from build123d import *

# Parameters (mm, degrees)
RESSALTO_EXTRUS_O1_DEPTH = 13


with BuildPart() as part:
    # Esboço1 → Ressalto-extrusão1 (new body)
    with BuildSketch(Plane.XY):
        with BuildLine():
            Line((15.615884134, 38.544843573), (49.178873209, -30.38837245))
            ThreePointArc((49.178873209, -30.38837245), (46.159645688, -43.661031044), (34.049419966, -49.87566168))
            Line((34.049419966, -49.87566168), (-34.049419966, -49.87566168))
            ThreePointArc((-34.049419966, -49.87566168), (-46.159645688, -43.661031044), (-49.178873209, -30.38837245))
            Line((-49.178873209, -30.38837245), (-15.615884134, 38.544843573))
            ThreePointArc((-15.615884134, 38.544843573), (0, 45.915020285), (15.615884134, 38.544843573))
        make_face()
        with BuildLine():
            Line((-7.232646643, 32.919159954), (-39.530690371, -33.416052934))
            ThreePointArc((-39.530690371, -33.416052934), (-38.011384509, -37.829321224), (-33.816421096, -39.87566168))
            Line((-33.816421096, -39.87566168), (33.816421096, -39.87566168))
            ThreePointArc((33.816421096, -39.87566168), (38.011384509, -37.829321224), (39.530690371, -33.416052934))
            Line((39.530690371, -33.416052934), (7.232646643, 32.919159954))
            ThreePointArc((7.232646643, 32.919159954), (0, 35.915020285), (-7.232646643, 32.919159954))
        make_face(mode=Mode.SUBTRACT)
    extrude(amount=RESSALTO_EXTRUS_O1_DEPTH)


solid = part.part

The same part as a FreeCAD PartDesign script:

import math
import FreeCAD as App
import Part
import Sketcher

V = App.Vector
Q = App.Units.Quantity

doc = App.newDocument("Part")
body = doc.addObject("PartDesign::Body", "Body")

sketch1 = doc.addObject("Sketcher::SketchObject", "Sketch")
body.addObject(sketch1)
sketch1.AttachmentSupport = (doc.XY_Plane, [""])
sketch1.MapMode = "FlatFace"
sketch1.addGeometry([
    Part.LineSegment(V(49.178873, -30.388372, 0), V(15.615884, 38.544844, 0)),
    Part.ArcOfCircle(Part.Circle(V(0, 25.686513, 0), V(0, 0, 1), 20.228507), math.radians(39.468503), math.radians(140.531497)),
    Part.LineSegment(V(-15.615884, 38.544844, 0), V(-49.178873, -30.388372, 0)),
    Part.ArcOfCircle(Part.Circle(V(-33.443751, -33.788723, 0), V(0, 0, 1), 16.098337), math.radians(167.805926), math.radians(267.843849)),
    Part.LineSegment(V(-34.04942, -49.875662, 0), V(34.04942, -49.875662, 0)),
    Part.ArcOfCircle(Part.Circle(V(33.443751, -33.788723, 0), V(0, 0, 1), 16.098337), math.radians(-87.843849), math.radians(12.194074)),
    Part.ArcOfCircle(Part.Circle(V(0, 25.686513, 0), V(0, 0, 1), 10.228507), math.radians(45), math.radians(135)),
    Part.LineSegment(V(7.232647, 32.91916, 0), V(39.53069, -33.416053, 0)),
    Part.ArcOfCircle(Part.Circle(V(33.443751, -33.788723, 0), V(0, 0, 1), 6.098337), math.radians(-86.496468), math.radians(3.503532)),
    Part.LineSegment(V(33.816421, -39.875662, 0), V(-33.816421, -39.875662, 0)),
    Part.ArcOfCircle(Part.Circle(V(-33.443751, -33.788723, 0), V(0, 0, 1), 6.098337), math.radians(176.496468), math.radians(266.496468)),
    Part.LineSegment(V(-39.53069, -33.416053, 0), V(-7.232647, 32.91916, 0)),
], False)
sketch1.addConstraint([
    Sketcher.Constraint("Coincident", 0, 2, 1, 1),
    Sketcher.Constraint("Coincident", 1, 2, 2, 1),
    Sketcher.Constraint("Coincident", 2, 2, 3, 1),
    Sketcher.Constraint("Coincident", 3, 2, 4, 1),
    Sketcher.Constraint("Coincident", 4, 2, 5, 1),
    Sketcher.Constraint("Coincident", 5, 2, 0, 1),
    Sketcher.Constraint("Coincident", 6, 1, 7, 1),
    Sketcher.Constraint("Coincident", 7, 2, 8, 2),
    Sketcher.Constraint("Coincident", 8, 1, 9, 1),
    Sketcher.Constraint("Coincident", 9, 2, 10, 2),
    Sketcher.Constraint("Coincident", 10, 1, 11, 1),
    Sketcher.Constraint("Coincident", 11, 2, 6, 2),
    Sketcher.Constraint("Horizontal", 4),
    Sketcher.Constraint("Horizontal", 9),
    Sketcher.Constraint("Coincident", 6, 3, 1, 3),
    Sketcher.Constraint("Coincident", 8, 3, 5, 3),
    Sketcher.Constraint("Coincident", 10, 3, 3, 3),
    Sketcher.Constraint("PointOnObject", 1, 3, -2),
    Sketcher.Constraint("DistanceY", 4, 2, 8, 1, Q("10 mm")),
    Sketcher.Constraint("Radius", 1, Q("20.228507 mm")),
    Sketcher.Constraint("Radius", 3, Q("16.098337 mm")),
    Sketcher.Constraint("Radius", 5, Q("16.098337 mm")),
    Sketcher.Constraint("Radius", 6, Q("10.228507 mm")),
    Sketcher.Constraint("Radius", 8, Q("6.098337 mm")),
    Sketcher.Constraint("Radius", 10, Q("6.098337 mm")),
    Sketcher.Constraint("DistanceX", 8, 1, 4, 2, Q("0.232999 mm")),
    Sketcher.Constraint("DistanceX", 3, 2, 9, 2, Q("0.232999 mm")),
    Sketcher.Constraint("DistanceX", 4, 1, 4, 2, Q("68.09884 mm")),
    Sketcher.Constraint("Distance", 7, Q("73.780242 mm")),
    Sketcher.Constraint("Distance", 11, Q("73.780242 mm")),
    Sketcher.Constraint("DistanceX", 3, 3, -1, 1, Q("33.443751 mm")),
    Sketcher.Constraint("DistanceY", 3, 2, -1, 1, Q("49.875662 mm")),
    Sketcher.Constraint("DistanceY", -1, 1, 6, 1, Q("32.91916 mm")),
    Sketcher.Constraint("DistanceX", -1, 1, 7, 2, Q("39.53069 mm")),
    Sketcher.Constraint("DistanceX", 10, 1, -1, 1, Q("39.53069 mm")),
    Sketcher.Constraint("DistanceY", 1, 3, 0, 2, Q("12.85833 mm")),
    Sketcher.Constraint("DistanceY", 1, 3, 1, 2, Q("12.85833 mm")),
    Sketcher.Constraint("DistanceX", 2, 2, 10, 3, Q("15.735122 mm")),
    Sketcher.Constraint("DistanceX", 8, 3, 5, 2, Q("15.735122 mm")),
])
pad1 = doc.addObject("PartDesign::Pad", "Pad")
body.addObject(pad1)
pad1.Profile = sketch1
pad1.Length = 13

doc.recompute()
